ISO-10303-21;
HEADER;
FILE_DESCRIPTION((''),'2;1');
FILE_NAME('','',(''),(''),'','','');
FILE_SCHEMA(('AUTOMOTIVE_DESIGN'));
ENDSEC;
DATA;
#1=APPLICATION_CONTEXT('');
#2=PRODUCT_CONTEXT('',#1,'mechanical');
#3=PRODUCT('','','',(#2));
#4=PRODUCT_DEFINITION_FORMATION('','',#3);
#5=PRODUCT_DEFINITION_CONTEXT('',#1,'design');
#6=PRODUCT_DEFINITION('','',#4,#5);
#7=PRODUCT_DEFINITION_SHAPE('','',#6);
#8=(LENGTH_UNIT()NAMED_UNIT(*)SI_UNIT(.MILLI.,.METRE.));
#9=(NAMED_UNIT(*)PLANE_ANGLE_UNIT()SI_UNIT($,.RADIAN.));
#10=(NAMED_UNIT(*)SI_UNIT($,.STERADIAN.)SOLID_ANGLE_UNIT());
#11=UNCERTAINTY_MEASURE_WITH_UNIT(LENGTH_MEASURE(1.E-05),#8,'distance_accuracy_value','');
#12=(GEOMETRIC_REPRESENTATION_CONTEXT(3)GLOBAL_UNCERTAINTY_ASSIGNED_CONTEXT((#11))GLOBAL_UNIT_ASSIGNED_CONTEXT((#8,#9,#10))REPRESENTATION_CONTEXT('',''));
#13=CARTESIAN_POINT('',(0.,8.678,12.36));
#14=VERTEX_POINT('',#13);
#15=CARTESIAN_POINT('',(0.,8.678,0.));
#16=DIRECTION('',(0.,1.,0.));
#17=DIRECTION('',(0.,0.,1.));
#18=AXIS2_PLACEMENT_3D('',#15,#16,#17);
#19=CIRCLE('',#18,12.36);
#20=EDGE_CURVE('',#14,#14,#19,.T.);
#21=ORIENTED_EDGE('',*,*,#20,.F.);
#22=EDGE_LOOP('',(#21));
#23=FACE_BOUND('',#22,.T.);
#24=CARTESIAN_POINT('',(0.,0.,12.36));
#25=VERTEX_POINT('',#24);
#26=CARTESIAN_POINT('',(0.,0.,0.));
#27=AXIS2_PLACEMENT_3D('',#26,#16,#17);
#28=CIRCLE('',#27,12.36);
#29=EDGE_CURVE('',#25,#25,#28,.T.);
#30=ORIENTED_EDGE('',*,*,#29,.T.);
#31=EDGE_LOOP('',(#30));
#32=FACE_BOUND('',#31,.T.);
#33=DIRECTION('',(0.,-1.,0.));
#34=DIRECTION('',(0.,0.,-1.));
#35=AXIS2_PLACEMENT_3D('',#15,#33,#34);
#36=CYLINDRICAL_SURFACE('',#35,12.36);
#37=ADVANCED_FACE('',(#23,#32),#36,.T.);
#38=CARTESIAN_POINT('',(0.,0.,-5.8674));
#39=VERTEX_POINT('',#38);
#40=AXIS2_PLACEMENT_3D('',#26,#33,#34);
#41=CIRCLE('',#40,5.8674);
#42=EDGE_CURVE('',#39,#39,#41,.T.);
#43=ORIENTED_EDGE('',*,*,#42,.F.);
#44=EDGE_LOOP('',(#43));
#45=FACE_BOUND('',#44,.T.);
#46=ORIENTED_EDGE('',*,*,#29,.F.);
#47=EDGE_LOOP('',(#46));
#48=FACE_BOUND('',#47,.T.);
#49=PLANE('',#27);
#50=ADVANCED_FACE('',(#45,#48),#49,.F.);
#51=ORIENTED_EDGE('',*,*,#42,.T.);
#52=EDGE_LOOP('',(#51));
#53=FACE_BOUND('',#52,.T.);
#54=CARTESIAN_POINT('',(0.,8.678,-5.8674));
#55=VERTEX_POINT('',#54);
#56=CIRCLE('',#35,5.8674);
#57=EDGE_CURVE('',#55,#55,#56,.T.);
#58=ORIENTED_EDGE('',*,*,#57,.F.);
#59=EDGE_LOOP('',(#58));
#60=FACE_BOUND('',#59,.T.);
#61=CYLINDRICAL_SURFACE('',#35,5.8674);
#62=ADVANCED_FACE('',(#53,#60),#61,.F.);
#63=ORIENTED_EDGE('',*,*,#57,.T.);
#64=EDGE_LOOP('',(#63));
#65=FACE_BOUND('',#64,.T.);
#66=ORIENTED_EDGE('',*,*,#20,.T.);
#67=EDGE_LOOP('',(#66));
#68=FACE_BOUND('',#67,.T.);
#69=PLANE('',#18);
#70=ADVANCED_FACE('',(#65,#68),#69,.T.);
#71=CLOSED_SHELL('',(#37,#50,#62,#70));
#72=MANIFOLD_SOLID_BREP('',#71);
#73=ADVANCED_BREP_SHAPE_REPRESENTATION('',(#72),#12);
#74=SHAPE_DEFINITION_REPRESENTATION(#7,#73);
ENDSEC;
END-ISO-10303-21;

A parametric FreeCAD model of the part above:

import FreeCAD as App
import Part
import Sketcher

V = App.Vector
Q = App.Units.Quantity

doc = App.newDocument("Part")
body = doc.addObject("PartDesign::Body", "Body")

sketch1 = body.newObject("Sketcher::SketchObject", "Sketch")
sketch1.AttachmentSupport = (doc.getObject("XZ_Plane"), [""])
sketch1.MapMode = "FlatFace"
sketch1.addGeometry(Part.Circle(V(0, 0, 0), V(0, 0, 1), 12.36), False)
sketch1.addConstraint(Sketcher.Constraint("Coincident", 0, 3, -1, 1))
sketch1.addConstraint(Sketcher.Constraint("Diameter", 0, 24.72))
pad1 = body.newObject("PartDesign::Pad", "Pad")
pad1.Profile = sketch1
pad1.Length = 8.678
pad1.Reversed = True

sketch2 = body.newObject("Sketcher::SketchObject", "Sketch001")
sketch2.AttachmentSupport = (doc.getObject("XZ_Plane"), [""])
sketch2.MapMode = "FlatFace"
sketch2.addGeometry(Part.Circle(V(0, 0, 0), V(0, 0, 1), 5.8674), False)
sketch2.addConstraint(Sketcher.Constraint("Coincident", 0, 3, -1, 1))
sketch2.addConstraint(Sketcher.Constraint("Diameter", 0, Q("0.462 in")))
pocket1 = body.newObject("PartDesign::Pocket", "Pocket")
pocket1.Profile = sketch2
pocket1.Type = "ThroughAll"

doc.recompute()
